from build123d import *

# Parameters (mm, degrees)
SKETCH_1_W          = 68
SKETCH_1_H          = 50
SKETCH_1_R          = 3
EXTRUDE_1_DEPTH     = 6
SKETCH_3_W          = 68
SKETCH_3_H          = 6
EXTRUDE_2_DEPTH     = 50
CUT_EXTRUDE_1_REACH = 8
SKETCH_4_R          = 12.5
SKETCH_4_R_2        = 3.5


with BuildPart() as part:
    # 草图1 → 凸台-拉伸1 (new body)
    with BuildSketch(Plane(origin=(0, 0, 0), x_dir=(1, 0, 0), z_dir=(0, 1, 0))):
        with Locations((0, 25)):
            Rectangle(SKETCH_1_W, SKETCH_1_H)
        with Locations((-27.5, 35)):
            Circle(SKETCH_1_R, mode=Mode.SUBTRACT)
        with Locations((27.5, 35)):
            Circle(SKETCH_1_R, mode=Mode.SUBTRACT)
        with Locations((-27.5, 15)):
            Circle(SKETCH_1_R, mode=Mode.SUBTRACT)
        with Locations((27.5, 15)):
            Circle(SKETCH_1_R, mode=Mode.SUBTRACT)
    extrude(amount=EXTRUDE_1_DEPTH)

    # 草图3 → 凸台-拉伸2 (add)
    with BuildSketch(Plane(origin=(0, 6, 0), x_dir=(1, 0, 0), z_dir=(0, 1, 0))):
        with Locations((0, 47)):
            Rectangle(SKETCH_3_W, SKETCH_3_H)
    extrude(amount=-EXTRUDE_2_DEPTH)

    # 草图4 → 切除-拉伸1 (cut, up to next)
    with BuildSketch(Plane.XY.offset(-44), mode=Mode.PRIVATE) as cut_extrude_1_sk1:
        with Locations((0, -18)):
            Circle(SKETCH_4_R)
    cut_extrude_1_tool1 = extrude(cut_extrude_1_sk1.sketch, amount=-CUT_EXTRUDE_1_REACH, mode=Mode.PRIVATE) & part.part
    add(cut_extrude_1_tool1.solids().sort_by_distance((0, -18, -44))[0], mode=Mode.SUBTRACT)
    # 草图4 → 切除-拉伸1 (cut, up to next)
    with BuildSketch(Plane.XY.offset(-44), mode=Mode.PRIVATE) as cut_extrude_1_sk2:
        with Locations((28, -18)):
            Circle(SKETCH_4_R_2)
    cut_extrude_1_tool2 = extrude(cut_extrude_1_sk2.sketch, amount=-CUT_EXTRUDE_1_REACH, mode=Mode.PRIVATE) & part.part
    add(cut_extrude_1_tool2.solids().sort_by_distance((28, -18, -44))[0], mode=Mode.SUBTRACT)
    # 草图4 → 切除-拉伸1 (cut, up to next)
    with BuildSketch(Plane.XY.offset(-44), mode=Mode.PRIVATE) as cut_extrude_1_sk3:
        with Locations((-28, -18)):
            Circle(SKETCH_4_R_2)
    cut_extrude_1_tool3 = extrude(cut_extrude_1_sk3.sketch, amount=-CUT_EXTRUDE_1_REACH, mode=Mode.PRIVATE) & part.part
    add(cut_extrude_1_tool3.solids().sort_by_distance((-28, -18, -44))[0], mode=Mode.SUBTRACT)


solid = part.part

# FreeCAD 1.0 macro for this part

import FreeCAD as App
import Part
import Sketcher
from FreeCAD import Vector
Q = App.Units.Quantity

doc = App.newDocument("Part")
body = doc.addObject("PartDesign::Body", "Body")

# Sketch on XZ plane
sketch1 = body.newObject("Sketcher::SketchObject", "Sketch")
sketch1.AttachmentSupport = (doc.getObject("XZ_Plane"), [""])
sketch1.MapMode = "FlatFace"
sketch1.addGeometry([
    Part.LineSegment(Vector(-34, -50, 0), Vector(-34, 0, 0)),  # 0
    Part.LineSegment(Vector(-34, 0, 0), Vector(34, 0, 0)),  # 1
    Part.LineSegment(Vector(34, 0, 0), Vector(34, -50, 0)),  # 2
    Part.LineSegment(Vector(34, -50, 0), Vector(-34, -50, 0)),  # 3
    Part.Circle(Vector(-27.5, -15, 0), Vector(0, 0, 1), 3),  # 4
    Part.Circle(Vector(27.5, -15, 0), Vector(0, 0, 1), 3),  # 5
    Part.Circle(Vector(-27.5, -35, 0), Vector(0, 0, 1), 3),  # 6
    Part.Circle(Vector(27.5, -35, 0), Vector(0, 0, 1), 3),  # 7
], False)
sketch1.addConstraint([
    Sketcher.Constraint("Coincident", 0, 2, 1, 1),
    Sketcher.Constraint("Coincident", 1, 2, 2, 1),
    Sketcher.Constraint("Coincident", 2, 2, 3, 1),
    Sketcher.Constraint("Coincident", 3, 2, 0, 1),
    Sketcher.Constraint("Vertical", 0),
    Sketcher.Constraint("Horizontal", 1),
    Sketcher.Constraint("Vertical", 2),
    Sketcher.Constraint("Horizontal", 3),
    Sketcher.Constraint("Equal", 4, 5),
    Sketcher.Constraint("Equal", 5, 6),
    Sketcher.Constraint("Equal", 6, 7),
    Sketcher.Constraint("Symmetric", 0, 2, 1, 2, -1, 1),
    Sketcher.Constraint("Symmetric", 4, 3, 5, 3, -2),
    Sketcher.Constraint("Symmetric", 6, 3, 7, 3, -2),
    Sketcher.Constraint("Vertical", 4, 3, 6, 3),
    Sketcher.Constraint("Diameter", 4, Q("6 mm")),
    Sketcher.Constraint("DistanceX", 1, 1, 1, 2, Q("68 mm")),
    Sketcher.Constraint("DistanceY", 0, 1, 0, 2, Q("50 mm")),
    Sketcher.Constraint("DistanceY", 4, 3, -1, 1, Q("15 mm")),
    Sketcher.Constraint("DistanceY", 6, 3, -1, 1, Q("35 mm")),
    Sketcher.Constraint("DistanceX", 4, 3, 5, 3, Q("55 mm")),
])
pad1 = body.newObject("PartDesign::Pad", "Pad")
pad1.Profile = sketch1
pad1.Length = 6
pad1.Reversed = True

# Sketch on XZ plane
sketch2 = body.newObject("Sketcher::SketchObject", "Sketch001")
sketch2.AttachmentSupport = (doc.getObject("XZ_Plane"), [""])
sketch2.MapMode = "FlatFace"
sketch2.AttachmentOffset = App.Placement(Vector(0, 0, -6), App.Rotation())
sketch2.addGeometry([
    Part.LineSegment(Vector(-34, -50, 0), Vector(-34, -44, 0)),
    Part.LineSegment(Vector(-34, -44, 0), Vector(34, -44, 0)),
    Part.LineSegment(Vector(34, -44, 0), Vector(34, -50, 0)),
    Part.LineSegment(Vector(34, -50, 0), Vector(-34, -50, 0)),
], False)
sketch2.addConstraint([
    Sketcher.Constraint("Coincident", 0, 2, 1, 1),
    Sketcher.Constraint("Coincident", 1, 2, 2, 1),
    Sketcher.Constraint("Coincident", 2, 2, 3, 1),
    Sketcher.Constraint("Coincident", 3, 2, 0, 1),
    Sketcher.Constraint("Vertical", 0),
    Sketcher.Constraint("Horizontal", 1),
    Sketcher.Constraint("Vertical", 2),
    Sketcher.Constraint("Horizontal", 3),
    Sketcher.Constraint("DistanceX", 1, 1, 1, 2, Q("68 mm")),
    Sketcher.Constraint("DistanceY", 0, 1, 0, 2, Q("6 mm")),
    Sketcher.Constraint("DistanceX", 0, 2, -1, 1, Q("34 mm")),
    Sketcher.Constraint("DistanceY", 0, 2, -1, 1, Q("44 mm")),
])
pad2 = body.newObject("PartDesign::Pad", "Pad001")
pad2.Profile = sketch2
pad2.Length = 50

# Sketch on XY plane
sketch3 = body.newObject("Sketcher::SketchObject", "Sketch002")
sketch3.AttachmentSupport = (doc.getObject("XY_Plane"), [""])
sketch3.MapMode = "FlatFace"
sketch3.AttachmentOffset = App.Placement(Vector(0, 0, -44), App.Rotation())
sketch3.addGeometry(Part.Circle(Vector(0, -18, 0), Vector(0, 0, 1), 12.5), False)
sketch3.addConstraint([
    Sketcher.Constraint("PointOnObject", 0, 3, -2),
    Sketcher.Constraint("Diameter", 0, Q("25 mm")),
    Sketcher.Constraint("DistanceY", 0, 3, -1, 1, Q("18 mm")),
])
pocket1 = body.newObject("PartDesign::Pocket", "Pocket")
pocket1.Profile = sketch3
pocket1.Type = "UpToFirst"

# Sketch on XY plane
sketch4 = body.newObject("Sketcher::SketchObject", "Sketch003")
sketch4.AttachmentSupport = (doc.getObject("XY_Plane"), [""])
sketch4.MapMode = "FlatFace"
sketch4.AttachmentOffset = App.Placement(Vector(0, 0, -44), App.Rotation())
sketch4.addGeometry(Part.Circle(Vector(28, -18, 0), Vector(0, 0, 1), 3.5), False)
sketch4.addConstraint([
    Sketcher.Constraint("Diameter", 0, Q("7 mm")),
    Sketcher.Constraint("DistanceX", -1, 1, 0, 3, Q("28 mm")),
    Sketcher.Constraint("DistanceY", 0, 3, -1, 1, Q("18 mm")),
])
pocket2 = body.newObject("PartDesign::Pocket", "Pocket001")
pocket2.Profile = sketch4
pocket2.Type = "UpToFirst"

# Sketch on XY plane
sketch5 = body.newObject("Sketcher::SketchObject", "Sketch004")
sketch5.AttachmentSupport = (doc.getObject("XY_Plane"), [""])
sketch5.MapMode = "FlatFace"
sketch5.AttachmentOffset = App.Placement(Vector(0, 0, -44), App.Rotation())
sketch5.addGeometry(Part.Circle(Vector(-28, -18, 0), Vector(0, 0, 1), 3.5), False)
sketch5.addConstraint([
    Sketcher.Constraint("Diameter", 0, Q("7 mm")),
    Sketcher.Constraint("DistanceX", 0, 3, -1, 1, Q("28 mm")),
    Sketcher.Constraint("DistanceY", 0, 3, -1, 1, Q("18 mm")),
])
pocket3 = body.newObject("PartDesign::Pocket", "Pocket002")
pocket3.Profile = sketch5
pocket3.Type = "UpToFirst"

doc.recompute()
